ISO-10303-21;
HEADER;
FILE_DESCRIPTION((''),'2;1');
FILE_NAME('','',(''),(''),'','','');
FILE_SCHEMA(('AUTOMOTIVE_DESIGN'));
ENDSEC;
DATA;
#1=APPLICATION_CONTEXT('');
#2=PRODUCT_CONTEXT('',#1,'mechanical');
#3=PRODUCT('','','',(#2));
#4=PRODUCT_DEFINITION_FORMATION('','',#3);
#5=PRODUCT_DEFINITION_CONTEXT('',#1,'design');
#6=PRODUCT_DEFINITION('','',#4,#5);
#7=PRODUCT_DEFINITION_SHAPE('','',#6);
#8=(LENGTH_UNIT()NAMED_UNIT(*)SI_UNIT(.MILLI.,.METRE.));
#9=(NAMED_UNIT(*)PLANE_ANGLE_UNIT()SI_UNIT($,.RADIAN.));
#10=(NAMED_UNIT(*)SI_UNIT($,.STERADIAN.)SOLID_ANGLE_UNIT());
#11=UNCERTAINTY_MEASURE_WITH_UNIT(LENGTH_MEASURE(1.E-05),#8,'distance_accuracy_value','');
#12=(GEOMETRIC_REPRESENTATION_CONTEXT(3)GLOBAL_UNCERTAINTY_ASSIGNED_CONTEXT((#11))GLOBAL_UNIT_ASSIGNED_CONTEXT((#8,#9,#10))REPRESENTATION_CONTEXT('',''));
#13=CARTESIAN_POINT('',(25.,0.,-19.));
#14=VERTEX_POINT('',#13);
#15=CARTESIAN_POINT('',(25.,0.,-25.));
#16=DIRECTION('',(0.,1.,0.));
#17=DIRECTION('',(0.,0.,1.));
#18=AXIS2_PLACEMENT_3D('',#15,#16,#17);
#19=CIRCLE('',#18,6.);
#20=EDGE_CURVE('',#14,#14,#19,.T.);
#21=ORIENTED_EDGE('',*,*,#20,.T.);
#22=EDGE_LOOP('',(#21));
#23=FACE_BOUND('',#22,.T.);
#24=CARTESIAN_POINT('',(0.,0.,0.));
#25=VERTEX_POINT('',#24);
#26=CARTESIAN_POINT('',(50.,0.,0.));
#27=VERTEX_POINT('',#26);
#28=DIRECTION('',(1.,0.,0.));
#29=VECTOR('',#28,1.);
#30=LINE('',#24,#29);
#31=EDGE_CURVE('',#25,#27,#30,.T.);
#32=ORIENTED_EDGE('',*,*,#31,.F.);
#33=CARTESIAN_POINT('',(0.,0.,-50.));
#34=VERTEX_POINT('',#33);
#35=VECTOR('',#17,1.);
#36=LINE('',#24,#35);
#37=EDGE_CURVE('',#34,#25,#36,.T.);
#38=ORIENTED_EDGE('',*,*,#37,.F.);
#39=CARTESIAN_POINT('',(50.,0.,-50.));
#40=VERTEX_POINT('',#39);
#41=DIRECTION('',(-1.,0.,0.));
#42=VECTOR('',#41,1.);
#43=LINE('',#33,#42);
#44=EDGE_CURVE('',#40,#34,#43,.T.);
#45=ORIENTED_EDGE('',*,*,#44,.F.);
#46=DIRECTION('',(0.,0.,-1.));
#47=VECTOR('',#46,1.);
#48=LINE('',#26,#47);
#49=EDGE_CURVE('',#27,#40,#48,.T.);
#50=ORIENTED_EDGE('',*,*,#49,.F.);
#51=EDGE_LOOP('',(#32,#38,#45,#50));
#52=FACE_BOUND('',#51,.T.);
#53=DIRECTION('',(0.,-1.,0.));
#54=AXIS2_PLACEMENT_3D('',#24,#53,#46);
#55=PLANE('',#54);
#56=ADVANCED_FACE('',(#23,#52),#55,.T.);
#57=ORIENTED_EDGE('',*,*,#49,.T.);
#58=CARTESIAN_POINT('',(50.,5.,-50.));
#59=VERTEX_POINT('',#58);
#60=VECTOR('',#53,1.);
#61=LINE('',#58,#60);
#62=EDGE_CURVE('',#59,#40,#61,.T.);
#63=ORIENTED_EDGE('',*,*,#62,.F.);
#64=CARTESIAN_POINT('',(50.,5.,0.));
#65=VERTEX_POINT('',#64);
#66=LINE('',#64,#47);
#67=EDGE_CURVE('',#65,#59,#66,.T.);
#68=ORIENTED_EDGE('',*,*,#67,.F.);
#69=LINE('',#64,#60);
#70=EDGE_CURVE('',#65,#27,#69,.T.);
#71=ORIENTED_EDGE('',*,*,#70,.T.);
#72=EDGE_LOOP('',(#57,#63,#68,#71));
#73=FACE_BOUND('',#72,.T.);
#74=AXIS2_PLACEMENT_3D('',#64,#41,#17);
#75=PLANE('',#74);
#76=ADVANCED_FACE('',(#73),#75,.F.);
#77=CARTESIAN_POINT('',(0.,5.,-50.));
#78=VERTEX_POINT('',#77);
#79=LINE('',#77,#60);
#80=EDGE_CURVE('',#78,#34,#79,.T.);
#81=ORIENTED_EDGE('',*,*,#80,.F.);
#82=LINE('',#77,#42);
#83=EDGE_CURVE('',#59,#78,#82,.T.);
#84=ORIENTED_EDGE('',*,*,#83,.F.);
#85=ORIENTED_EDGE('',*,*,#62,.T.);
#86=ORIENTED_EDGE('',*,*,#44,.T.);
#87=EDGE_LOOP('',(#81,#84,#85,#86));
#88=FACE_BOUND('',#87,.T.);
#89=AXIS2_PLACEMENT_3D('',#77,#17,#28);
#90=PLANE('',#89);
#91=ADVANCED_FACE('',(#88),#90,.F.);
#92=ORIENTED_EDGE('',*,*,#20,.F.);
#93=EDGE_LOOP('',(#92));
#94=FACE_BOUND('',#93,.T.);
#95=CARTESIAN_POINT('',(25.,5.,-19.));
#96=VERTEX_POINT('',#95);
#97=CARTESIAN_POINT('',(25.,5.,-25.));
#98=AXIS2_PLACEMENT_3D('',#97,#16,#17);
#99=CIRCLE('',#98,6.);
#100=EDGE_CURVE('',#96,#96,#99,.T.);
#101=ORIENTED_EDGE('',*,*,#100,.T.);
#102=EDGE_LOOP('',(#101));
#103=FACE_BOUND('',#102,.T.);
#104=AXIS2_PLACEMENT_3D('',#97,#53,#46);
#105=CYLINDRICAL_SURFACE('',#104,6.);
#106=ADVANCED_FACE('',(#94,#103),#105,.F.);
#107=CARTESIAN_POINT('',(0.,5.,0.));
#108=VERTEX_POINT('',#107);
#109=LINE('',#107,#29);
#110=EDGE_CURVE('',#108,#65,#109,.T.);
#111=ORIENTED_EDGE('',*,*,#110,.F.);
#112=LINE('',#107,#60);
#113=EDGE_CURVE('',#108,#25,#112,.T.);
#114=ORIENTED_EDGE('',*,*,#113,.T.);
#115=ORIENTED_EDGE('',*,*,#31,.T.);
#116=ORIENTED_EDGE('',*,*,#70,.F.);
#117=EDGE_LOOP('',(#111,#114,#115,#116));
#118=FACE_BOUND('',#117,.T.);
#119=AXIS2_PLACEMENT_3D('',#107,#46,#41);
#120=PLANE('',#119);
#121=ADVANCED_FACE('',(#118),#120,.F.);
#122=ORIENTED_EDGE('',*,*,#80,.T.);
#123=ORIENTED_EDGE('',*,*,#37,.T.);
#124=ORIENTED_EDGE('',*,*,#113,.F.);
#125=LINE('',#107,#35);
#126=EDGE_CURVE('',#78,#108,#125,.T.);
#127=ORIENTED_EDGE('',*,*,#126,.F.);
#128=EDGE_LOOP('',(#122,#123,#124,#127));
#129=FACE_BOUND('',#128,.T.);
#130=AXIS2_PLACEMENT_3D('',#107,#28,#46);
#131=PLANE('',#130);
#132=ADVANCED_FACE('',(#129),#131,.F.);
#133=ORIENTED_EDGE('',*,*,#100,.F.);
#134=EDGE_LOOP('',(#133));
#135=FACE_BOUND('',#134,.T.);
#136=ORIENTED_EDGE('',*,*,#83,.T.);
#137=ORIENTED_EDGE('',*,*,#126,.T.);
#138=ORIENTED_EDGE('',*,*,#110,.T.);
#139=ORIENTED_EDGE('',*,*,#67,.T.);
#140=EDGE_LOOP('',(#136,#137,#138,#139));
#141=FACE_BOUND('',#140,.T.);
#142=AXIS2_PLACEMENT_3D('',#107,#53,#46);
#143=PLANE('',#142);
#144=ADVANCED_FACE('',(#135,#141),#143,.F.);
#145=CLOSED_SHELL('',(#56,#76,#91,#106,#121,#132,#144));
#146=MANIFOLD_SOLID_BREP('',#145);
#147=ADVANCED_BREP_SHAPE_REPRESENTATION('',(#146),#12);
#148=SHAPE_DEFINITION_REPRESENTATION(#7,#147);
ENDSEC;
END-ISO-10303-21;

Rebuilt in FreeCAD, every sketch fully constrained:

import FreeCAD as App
import Part
import Sketcher

V = App.Vector

doc = App.newDocument("Part")
body = doc.addObject("PartDesign::Body", "Body")

# Sketch on XZ plane
sketch1 = body.newObject("Sketcher::SketchObject", "Sketch")
sketch1.AttachmentSupport = (doc.getObject("XZ_Plane"), [""])
sketch1.MapMode = "FlatFace"
sketch1.addGeometry(Part.LineSegment(V(0, -50, 0), V(0, 0, 0)), False)
sketch1.addGeometry(Part.LineSegment(V(0, 0, 0), V(50, 0, 0)), False)
sketch1.addGeometry(Part.LineSegment(V(50, 0, 0), V(50, -50, 0)), False)
sketch1.addGeometry(Part.LineSegment(V(50, -50, 0), V(0, -50, 0)), False)
sketch1.addGeometry(Part.Circle(V(25, -25, 0), V(0, 0, 1), 6), False)
sketch1.addConstraint(Sketcher.Constraint("Coincident", 0, 2, 1, 1))
sketch1.addConstraint(Sketcher.Constraint("Coincident", 1, 2, 2, 1))
sketch1.addConstraint(Sketcher.Constraint("Coincident", 2, 2, 3, 1))
sketch1.addConstraint(Sketcher.Constraint("Coincident", 3, 2, 0, 1))
sketch1.addConstraint(Sketcher.Constraint("Vertical", 0))
sketch1.addConstraint(Sketcher.Constraint("Horizontal", 1))
sketch1.addConstraint(Sketcher.Constraint("Vertical", 2))
sketch1.addConstraint(Sketcher.Constraint("Horizontal", 3))
sketch1.addConstraint(Sketcher.Constraint("Coincident", 0, 2, -1, 1))
sketch1.addConstraint(Sketcher.Constraint("Equal", 3, 0))
sketch1.addConstraint(Sketcher.Constraint("Diameter", 4, 12.0))
sketch1.addConstraint(Sketcher.Constraint("DistanceX", 1, 1, 1, 2, 50.0))
sketch1.addConstraint(Sketcher.Constraint("DistanceX", -1, 1, 4, 3, 25.0))
sketch1.addConstraint(Sketcher.Constraint("DistanceY", 4, 3, -1, 1, 25.0))
pad1 = body.newObject("PartDesign::Pad", "Pad")
pad1.Profile = sketch1
pad1.Length = 5
pad1.Reversed = True

doc.recompute()
